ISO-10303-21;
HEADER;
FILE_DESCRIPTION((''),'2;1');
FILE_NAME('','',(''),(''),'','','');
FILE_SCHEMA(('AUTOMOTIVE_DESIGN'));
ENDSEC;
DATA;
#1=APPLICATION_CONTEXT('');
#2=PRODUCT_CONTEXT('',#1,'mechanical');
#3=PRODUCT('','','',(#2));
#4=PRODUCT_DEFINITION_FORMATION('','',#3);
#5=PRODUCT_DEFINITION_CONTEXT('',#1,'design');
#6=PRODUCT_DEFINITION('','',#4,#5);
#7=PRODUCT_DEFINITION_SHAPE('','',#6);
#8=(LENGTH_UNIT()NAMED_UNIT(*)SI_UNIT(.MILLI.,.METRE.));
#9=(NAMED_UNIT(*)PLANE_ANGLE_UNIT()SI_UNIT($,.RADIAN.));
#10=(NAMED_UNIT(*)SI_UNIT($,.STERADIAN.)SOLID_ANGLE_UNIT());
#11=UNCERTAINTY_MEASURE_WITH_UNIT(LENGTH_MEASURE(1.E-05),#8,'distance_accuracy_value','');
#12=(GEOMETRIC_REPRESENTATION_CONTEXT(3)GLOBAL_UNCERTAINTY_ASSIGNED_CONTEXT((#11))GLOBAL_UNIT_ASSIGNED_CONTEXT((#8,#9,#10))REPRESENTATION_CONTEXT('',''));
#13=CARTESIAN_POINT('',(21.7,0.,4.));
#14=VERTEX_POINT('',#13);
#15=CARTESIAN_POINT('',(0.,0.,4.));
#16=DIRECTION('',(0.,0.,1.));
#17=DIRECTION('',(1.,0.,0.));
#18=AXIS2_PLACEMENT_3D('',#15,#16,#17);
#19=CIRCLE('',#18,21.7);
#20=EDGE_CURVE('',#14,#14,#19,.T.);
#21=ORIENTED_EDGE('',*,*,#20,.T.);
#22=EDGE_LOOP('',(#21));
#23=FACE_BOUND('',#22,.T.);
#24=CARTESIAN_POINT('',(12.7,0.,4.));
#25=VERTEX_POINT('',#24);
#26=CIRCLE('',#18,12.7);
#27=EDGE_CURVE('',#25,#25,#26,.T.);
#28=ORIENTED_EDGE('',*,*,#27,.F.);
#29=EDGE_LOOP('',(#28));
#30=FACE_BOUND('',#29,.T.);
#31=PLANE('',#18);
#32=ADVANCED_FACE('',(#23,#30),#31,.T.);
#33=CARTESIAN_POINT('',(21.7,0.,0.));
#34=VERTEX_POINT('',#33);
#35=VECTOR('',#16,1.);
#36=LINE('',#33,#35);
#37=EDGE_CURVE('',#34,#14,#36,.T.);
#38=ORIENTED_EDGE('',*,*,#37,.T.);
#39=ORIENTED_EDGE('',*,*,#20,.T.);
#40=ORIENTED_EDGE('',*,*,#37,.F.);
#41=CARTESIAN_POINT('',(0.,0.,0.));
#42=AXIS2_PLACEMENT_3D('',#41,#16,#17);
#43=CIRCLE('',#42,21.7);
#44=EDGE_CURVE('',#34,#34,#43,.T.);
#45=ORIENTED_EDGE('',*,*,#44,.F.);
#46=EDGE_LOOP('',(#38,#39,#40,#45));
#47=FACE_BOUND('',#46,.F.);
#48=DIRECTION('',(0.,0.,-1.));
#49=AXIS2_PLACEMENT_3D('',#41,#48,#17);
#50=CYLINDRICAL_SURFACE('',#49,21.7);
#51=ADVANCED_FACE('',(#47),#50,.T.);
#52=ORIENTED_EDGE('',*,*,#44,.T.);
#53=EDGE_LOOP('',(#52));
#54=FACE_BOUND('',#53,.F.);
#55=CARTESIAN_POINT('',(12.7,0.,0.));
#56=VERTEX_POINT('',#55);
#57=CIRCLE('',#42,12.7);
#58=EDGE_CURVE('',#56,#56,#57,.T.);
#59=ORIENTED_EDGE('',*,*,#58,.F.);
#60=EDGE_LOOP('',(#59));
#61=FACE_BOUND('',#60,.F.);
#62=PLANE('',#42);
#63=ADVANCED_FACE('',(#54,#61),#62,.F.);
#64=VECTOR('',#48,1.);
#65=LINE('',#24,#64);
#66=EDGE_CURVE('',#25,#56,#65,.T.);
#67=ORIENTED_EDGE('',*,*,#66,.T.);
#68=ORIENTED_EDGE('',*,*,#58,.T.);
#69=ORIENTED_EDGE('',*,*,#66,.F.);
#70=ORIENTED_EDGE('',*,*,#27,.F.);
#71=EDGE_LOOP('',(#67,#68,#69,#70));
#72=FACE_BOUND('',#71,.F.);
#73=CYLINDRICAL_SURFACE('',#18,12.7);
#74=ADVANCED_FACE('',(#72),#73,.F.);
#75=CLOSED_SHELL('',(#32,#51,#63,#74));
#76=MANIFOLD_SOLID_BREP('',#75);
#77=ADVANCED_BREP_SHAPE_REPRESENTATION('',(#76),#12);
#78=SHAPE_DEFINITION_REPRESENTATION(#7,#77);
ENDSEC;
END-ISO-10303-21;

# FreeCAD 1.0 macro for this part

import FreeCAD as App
import Part
import Sketcher

doc = App.newDocument("Part")
body = doc.addObject("PartDesign::Body", "Body")

# Sketch on XY plane
sketch1 = body.newObject("Sketcher::SketchObject", "Sketch")
sketch1.AttachmentSupport = (doc.getObject("XY_Plane"), [""])
sketch1.MapMode = "FlatFace"
sketch1.addGeometry(Part.Circle(App.Vector(0, 0, 0), App.Vector(0, 0, 1), 22), False)
sketch1.addConstraint(Sketcher.Constraint("Coincident", 0, 3, -1, 1))
sketch1.addConstraint(Sketcher.Constraint("Diameter", 0, 43.4))
pad1 = body.newObject("PartDesign::Pad", "Pad")
pad1.Profile = sketch1
pad1.Length = 4

# Sketch on XY plane
sketch2 = body.newObject("Sketcher::SketchObject", "Sketch001")
sketch2.AttachmentSupport = (doc.getObject("XY_Plane"), [""])
sketch2.MapMode = "FlatFace"
sketch2.AttachmentOffset = App.Placement(App.Vector(0, 0, 4), App.Rotation())
sketch2.addGeometry(Part.Circle(App.Vector(0, 0, 0), App.Vector(0, 0, 1), 13), False)
sketch2.addConstraint(Sketcher.Constraint("Coincident", 0, 3, -1, 1))
sketch2.addConstraint(Sketcher.Constraint("Diameter", 0, 25.4))
pocket1 = body.newObject("PartDesign::Pocket", "Pocket")
pocket1.Profile = sketch2
pocket1.Length = 4

doc.recompute()
